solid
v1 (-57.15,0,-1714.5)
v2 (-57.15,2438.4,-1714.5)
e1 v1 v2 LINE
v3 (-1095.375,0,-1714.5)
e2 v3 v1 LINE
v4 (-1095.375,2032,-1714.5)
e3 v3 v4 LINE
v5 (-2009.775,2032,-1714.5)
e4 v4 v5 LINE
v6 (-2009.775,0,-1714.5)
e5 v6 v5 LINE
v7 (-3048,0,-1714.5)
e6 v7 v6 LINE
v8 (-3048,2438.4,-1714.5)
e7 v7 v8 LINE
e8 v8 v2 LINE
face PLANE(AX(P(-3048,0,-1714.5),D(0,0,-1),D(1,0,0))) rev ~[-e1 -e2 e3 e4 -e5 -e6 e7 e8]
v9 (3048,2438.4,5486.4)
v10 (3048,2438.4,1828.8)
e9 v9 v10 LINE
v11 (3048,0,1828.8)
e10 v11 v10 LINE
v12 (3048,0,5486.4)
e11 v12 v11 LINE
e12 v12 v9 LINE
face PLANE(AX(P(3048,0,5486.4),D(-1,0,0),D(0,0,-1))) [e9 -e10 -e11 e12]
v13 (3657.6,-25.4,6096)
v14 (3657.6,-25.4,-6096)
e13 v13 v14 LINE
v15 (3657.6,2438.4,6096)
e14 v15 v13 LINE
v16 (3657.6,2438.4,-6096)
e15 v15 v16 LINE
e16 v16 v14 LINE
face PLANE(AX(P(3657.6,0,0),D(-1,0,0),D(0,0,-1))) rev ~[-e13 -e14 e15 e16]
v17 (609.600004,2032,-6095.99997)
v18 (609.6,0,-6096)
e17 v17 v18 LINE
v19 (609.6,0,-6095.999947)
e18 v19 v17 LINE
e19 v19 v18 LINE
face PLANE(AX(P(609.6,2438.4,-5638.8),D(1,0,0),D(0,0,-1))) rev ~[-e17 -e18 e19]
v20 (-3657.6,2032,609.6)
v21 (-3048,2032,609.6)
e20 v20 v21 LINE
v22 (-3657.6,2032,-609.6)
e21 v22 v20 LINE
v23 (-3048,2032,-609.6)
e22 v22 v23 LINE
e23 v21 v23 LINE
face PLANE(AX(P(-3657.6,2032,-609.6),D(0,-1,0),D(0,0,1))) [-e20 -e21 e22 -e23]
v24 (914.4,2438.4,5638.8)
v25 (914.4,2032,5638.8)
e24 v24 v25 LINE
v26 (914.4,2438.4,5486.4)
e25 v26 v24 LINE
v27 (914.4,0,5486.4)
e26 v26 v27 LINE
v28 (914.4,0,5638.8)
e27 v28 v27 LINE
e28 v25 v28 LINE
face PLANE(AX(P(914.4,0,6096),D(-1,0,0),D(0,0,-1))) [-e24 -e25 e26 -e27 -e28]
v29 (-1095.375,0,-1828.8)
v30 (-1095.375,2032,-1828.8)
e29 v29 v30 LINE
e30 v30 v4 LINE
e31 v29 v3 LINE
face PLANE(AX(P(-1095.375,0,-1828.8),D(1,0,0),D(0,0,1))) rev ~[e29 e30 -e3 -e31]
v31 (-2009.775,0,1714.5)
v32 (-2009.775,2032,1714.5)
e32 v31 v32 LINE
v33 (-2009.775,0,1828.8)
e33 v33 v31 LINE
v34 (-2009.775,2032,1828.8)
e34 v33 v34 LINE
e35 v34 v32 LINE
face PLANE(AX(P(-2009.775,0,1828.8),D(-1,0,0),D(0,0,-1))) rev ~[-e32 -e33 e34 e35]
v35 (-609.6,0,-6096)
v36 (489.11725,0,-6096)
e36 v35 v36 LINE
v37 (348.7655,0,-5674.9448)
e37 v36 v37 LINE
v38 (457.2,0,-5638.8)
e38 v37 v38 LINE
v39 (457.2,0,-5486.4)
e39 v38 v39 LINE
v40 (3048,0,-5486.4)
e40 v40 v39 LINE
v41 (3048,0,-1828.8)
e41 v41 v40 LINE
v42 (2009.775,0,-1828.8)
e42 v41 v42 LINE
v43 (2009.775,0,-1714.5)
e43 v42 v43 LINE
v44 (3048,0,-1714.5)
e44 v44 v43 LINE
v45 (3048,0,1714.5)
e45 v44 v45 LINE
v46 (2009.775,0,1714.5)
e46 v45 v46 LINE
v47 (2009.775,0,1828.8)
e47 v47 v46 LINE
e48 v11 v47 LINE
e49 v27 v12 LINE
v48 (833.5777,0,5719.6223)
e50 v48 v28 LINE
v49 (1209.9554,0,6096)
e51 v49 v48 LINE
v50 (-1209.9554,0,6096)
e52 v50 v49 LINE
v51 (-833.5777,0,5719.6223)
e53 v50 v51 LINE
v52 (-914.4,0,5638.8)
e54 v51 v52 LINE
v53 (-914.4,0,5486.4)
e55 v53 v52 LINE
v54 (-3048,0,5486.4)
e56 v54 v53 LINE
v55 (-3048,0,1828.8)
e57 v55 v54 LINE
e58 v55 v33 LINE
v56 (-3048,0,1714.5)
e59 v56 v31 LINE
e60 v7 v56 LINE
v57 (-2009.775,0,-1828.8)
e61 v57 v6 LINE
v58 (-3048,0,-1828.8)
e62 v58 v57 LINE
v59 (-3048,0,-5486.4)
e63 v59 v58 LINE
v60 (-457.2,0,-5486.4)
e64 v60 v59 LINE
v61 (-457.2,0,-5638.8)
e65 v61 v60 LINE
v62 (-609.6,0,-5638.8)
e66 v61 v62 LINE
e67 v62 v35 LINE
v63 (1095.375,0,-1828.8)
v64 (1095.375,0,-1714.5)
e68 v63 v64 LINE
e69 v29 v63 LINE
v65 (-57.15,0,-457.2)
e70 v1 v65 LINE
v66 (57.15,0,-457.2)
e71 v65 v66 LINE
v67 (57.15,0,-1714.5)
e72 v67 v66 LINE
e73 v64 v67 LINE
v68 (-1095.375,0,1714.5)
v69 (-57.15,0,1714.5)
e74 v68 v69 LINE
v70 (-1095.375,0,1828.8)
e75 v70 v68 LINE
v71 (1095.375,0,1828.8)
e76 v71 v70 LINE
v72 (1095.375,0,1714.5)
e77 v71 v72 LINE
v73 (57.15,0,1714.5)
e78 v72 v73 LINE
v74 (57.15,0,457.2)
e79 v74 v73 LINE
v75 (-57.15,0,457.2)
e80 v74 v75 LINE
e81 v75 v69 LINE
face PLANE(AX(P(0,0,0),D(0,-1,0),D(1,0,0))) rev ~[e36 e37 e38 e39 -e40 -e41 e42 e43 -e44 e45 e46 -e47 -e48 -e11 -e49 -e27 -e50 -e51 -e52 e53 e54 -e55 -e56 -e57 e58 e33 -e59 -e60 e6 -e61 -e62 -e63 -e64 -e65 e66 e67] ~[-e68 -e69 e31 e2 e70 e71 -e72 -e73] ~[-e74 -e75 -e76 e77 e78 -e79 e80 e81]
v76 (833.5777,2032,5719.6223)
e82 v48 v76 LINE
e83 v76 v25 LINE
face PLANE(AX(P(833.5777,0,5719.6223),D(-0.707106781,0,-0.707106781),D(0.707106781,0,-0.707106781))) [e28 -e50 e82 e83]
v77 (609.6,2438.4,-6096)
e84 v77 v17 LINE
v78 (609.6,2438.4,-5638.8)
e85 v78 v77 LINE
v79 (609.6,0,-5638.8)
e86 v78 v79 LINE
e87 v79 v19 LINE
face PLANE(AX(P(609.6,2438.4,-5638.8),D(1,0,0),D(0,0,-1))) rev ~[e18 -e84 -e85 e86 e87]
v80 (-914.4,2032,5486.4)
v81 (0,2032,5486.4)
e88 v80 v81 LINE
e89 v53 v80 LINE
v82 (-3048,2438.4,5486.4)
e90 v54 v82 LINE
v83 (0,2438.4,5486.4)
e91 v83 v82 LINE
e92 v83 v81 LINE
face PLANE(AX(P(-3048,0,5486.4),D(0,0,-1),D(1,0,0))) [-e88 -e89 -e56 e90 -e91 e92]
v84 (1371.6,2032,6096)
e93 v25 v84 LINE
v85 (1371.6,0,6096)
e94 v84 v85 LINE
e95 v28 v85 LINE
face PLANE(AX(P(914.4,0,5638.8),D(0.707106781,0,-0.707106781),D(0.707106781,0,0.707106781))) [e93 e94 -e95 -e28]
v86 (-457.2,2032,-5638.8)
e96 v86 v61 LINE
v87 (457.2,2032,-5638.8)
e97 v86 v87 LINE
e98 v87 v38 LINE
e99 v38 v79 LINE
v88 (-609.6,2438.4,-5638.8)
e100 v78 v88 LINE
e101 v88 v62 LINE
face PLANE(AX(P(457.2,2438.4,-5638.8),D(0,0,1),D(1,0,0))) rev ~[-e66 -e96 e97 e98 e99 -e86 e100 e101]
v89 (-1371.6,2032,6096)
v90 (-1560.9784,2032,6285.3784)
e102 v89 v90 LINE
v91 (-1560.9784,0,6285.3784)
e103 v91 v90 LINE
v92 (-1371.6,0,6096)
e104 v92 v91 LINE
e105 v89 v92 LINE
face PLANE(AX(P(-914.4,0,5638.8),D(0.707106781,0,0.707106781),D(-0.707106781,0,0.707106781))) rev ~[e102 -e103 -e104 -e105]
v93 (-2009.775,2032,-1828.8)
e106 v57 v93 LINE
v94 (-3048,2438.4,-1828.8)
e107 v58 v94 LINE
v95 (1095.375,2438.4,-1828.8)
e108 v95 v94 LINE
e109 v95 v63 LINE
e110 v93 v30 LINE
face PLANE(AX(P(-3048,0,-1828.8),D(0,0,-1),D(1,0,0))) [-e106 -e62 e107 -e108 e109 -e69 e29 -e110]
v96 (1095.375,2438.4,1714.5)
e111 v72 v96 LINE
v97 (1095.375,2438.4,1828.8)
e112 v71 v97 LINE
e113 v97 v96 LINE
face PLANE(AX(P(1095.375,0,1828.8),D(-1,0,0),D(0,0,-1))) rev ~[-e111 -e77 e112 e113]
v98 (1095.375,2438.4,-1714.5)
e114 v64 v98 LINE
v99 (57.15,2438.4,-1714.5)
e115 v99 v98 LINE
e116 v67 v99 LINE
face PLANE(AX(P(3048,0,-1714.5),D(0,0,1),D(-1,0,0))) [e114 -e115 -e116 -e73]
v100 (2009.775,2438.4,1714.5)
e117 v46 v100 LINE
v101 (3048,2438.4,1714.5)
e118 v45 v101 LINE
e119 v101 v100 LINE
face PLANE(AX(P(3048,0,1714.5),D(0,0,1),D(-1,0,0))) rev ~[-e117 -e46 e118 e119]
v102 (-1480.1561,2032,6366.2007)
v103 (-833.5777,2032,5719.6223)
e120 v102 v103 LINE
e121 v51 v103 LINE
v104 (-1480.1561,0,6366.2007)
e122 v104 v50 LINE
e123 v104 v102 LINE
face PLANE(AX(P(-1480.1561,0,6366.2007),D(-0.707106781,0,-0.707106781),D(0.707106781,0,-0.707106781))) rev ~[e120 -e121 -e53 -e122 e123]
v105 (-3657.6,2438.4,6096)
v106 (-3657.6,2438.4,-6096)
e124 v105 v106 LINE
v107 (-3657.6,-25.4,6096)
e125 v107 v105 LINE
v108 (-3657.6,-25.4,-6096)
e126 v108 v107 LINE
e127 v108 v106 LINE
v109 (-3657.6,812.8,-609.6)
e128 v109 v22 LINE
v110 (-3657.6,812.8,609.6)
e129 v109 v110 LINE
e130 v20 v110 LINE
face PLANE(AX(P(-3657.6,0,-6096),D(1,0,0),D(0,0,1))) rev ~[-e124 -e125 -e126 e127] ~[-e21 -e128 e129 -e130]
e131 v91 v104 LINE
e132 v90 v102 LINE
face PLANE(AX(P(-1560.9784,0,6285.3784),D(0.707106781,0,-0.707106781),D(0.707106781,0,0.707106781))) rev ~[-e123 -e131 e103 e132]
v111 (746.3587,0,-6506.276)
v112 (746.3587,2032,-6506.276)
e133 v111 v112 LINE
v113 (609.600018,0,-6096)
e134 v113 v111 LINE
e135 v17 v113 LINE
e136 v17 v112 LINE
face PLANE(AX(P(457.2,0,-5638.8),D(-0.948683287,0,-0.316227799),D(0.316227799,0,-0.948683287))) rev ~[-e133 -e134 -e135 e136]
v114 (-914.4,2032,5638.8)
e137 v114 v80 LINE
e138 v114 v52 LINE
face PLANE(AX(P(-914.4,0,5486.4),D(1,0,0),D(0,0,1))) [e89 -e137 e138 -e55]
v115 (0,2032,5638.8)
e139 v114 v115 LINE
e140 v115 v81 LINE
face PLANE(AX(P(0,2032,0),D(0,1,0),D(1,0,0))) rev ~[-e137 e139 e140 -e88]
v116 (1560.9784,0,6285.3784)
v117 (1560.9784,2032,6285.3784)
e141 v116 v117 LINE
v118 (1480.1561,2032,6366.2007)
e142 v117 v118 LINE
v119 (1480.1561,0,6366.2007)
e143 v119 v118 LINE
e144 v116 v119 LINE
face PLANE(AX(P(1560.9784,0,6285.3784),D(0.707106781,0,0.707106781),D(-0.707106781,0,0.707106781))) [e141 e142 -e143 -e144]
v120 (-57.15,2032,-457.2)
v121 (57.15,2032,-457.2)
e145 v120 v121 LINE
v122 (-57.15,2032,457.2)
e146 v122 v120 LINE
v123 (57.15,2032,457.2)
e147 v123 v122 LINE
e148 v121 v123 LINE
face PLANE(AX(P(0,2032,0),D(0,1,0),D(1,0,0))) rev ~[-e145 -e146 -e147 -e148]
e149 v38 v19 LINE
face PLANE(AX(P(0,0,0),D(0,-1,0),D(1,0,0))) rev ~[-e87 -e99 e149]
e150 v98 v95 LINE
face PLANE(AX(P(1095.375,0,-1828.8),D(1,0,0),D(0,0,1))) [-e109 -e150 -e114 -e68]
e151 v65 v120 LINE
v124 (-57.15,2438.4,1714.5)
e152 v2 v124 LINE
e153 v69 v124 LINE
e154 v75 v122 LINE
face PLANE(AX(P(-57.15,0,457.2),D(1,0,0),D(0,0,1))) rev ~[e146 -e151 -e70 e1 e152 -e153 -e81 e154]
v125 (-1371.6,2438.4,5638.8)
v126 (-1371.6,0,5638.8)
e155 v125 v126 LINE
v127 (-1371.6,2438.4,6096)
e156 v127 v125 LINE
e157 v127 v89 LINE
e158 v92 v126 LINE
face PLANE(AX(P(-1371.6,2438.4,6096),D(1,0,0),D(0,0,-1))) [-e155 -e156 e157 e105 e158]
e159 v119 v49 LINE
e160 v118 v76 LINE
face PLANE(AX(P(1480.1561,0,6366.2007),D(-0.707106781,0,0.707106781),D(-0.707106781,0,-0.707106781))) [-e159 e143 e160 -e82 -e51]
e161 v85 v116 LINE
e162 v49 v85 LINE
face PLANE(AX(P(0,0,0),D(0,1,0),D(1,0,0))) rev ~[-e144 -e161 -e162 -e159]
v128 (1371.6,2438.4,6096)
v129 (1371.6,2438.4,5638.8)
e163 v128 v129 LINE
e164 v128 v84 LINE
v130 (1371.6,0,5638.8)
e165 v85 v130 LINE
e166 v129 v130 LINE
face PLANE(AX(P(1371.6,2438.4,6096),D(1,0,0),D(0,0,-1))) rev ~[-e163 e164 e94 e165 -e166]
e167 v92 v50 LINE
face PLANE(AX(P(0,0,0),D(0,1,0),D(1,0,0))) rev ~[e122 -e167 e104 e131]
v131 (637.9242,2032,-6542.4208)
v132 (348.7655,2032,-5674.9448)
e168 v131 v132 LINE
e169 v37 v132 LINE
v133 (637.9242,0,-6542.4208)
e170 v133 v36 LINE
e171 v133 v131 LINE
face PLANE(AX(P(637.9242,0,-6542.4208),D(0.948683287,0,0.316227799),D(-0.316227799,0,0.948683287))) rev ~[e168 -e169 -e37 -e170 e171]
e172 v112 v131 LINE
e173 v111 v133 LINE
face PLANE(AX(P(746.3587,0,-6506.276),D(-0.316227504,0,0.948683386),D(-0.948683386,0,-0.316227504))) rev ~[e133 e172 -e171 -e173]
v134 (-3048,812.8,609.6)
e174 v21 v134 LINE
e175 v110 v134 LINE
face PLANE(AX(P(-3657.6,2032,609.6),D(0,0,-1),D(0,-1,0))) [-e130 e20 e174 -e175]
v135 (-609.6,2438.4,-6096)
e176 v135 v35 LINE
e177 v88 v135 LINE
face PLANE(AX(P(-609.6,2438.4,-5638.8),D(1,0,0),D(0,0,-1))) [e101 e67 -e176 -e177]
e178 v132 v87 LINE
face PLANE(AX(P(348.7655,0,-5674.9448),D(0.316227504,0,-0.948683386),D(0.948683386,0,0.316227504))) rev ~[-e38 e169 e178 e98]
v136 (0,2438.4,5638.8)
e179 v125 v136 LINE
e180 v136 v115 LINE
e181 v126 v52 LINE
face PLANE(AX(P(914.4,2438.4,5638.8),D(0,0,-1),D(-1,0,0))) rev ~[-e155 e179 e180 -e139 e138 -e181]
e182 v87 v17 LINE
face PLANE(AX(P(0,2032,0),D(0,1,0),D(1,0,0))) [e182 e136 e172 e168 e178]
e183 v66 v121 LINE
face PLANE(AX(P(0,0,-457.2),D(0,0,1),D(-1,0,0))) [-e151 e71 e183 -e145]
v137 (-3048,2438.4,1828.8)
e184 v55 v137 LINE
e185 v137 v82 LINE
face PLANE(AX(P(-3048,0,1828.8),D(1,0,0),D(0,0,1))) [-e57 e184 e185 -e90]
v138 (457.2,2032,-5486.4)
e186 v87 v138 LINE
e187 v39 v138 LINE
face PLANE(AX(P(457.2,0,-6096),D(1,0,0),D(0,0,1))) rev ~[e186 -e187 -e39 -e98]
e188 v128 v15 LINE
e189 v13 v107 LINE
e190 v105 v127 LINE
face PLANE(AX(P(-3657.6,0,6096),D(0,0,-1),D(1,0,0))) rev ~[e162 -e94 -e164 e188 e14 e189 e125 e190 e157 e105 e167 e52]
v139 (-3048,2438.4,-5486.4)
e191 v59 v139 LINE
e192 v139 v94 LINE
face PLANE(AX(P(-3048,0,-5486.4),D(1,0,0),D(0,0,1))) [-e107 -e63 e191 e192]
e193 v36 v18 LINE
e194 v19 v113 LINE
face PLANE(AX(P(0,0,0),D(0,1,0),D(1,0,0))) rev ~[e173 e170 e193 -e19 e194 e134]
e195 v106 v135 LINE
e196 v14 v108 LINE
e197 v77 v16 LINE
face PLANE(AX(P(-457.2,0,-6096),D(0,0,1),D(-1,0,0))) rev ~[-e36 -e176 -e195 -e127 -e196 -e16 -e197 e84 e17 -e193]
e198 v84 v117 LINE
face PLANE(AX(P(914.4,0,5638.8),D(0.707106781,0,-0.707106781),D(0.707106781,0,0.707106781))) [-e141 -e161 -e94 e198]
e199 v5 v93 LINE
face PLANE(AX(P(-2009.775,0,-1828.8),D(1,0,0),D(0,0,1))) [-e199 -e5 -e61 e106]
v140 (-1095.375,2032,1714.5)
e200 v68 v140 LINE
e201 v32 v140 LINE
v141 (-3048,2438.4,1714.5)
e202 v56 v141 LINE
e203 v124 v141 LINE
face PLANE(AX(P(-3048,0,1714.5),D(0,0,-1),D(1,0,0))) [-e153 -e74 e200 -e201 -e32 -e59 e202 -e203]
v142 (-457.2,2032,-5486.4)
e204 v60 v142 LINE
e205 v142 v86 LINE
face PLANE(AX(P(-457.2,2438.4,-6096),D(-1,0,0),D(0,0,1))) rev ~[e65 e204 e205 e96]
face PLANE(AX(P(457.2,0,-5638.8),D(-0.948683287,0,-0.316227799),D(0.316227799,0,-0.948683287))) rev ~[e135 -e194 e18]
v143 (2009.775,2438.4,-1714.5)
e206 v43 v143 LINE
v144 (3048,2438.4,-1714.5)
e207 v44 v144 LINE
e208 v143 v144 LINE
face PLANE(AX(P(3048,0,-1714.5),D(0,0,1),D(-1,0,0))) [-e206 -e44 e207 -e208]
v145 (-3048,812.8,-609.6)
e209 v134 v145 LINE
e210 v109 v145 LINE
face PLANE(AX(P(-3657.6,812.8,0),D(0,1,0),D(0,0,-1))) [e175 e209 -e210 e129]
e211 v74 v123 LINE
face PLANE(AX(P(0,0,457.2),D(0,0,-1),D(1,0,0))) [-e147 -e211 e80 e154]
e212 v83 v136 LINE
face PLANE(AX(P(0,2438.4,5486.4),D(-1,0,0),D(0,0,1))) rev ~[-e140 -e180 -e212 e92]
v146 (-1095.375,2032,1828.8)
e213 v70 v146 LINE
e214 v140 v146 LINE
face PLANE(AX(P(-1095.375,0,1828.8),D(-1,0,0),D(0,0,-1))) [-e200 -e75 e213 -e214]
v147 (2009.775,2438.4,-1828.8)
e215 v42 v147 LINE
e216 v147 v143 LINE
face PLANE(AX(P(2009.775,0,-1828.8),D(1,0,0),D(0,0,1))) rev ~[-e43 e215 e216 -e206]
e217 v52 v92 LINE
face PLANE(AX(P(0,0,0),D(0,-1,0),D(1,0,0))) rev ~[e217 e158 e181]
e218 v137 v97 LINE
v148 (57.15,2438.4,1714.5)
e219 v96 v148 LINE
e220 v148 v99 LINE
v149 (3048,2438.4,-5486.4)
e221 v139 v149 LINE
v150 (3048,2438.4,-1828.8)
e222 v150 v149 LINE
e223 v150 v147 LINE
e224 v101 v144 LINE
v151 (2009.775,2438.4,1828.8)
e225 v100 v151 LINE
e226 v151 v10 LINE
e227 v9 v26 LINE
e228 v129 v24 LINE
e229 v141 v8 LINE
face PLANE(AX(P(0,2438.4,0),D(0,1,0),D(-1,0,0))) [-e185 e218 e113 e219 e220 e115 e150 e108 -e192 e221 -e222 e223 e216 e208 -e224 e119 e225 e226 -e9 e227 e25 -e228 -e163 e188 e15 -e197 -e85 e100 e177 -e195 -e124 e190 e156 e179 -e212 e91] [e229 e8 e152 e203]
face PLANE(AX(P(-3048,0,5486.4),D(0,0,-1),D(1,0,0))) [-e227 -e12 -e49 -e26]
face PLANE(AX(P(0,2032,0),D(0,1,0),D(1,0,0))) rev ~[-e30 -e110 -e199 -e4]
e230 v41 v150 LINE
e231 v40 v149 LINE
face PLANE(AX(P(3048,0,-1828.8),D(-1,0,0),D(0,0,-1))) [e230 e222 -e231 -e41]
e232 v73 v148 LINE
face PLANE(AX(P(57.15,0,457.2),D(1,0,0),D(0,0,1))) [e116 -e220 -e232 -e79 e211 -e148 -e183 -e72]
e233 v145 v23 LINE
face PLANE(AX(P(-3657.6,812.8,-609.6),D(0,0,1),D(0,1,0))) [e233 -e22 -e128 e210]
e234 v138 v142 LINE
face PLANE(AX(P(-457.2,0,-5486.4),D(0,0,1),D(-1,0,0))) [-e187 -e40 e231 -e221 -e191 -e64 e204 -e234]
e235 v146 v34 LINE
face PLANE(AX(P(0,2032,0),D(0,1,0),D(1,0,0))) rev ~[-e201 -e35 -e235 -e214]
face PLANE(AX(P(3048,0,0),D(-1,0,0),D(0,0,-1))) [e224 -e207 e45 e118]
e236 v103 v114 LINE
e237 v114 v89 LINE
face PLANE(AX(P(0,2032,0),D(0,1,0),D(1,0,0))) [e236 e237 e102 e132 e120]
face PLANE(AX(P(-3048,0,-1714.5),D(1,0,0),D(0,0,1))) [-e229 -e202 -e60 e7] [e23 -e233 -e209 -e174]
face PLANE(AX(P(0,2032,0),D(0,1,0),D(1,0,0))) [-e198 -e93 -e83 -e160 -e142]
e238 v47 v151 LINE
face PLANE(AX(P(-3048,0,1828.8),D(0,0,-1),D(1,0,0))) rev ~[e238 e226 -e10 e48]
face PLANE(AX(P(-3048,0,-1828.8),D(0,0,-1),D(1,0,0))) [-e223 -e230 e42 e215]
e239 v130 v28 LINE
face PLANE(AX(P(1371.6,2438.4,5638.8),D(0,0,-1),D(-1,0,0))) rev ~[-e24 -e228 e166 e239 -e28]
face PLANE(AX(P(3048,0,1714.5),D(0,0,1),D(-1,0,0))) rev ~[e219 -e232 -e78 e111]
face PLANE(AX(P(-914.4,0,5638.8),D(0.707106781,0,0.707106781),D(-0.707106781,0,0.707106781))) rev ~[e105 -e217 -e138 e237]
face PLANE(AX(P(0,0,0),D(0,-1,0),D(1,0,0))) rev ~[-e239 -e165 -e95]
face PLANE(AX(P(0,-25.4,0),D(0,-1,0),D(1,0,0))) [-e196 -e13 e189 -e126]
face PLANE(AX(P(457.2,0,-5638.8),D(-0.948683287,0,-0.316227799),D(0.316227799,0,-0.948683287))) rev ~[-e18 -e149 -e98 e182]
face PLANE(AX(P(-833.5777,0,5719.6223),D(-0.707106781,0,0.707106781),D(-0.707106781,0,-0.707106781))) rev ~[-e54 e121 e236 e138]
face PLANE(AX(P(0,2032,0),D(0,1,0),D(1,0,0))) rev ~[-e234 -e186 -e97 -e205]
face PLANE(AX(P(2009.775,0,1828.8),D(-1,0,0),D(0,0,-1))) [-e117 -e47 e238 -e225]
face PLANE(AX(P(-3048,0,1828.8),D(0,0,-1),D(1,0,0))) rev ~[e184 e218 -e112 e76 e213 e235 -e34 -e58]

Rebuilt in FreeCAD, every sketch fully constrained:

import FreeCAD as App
import Part
import Sketcher
from FreeCAD import Vector
Q = App.Units.Quantity

doc = App.newDocument("Part")
body = doc.addObject("PartDesign::Body", "Body")
body.AllowCompound = True

sketch1 = body.newObject("Sketcher::SketchObject", "Sketch")
sketch1.AttachmentSupport = (doc.getObject("XZ_Plane"), [""])
sketch1.MapMode = "FlatFace"
sketch1.addGeometry([
    Part.LineSegment(Vector(-457, -6096, 0), Vector(-3658, -6096, 0)),
    Part.LineSegment(Vector(-3658, -6096, 0), Vector(-3658, 6096, 0)),
    Part.LineSegment(Vector(-3658, 6096, 0), Vector(-914, 6096, 0)),
    Part.LineSegment(Vector(-914, 6096, 0), Vector(-914, 5486, 0)),
    Part.LineSegment(Vector(-914, 5486, 0), Vector(-3048, 5486, 0)),
    Part.LineSegment(Vector(-3048, 5486, 0), Vector(-3048, 1829, 0)),
    Part.LineSegment(Vector(-3048, 1829, 0), Vector(-2010, 1829, 0)),
    Part.LineSegment(Vector(-2010, 1829, 0), Vector(-2010, 1714, 0)),
    Part.LineSegment(Vector(-2010, 1714, 0), Vector(-3048, 1714, 0)),
    Part.LineSegment(Vector(-3048, 1714, 0), Vector(-3048, -1714, 0)),
    Part.LineSegment(Vector(-3048, -1714, 0), Vector(-2010, -1714, 0)),
    Part.LineSegment(Vector(-2010, -1714, 0), Vector(-2010, -1829, 0)),
    Part.LineSegment(Vector(-2010, -1829, 0), Vector(-3048, -1829, 0)),
    Part.LineSegment(Vector(-3048, -1829, 0), Vector(-3048, -5486, 0)),
    Part.LineSegment(Vector(-3048, -5486, 0), Vector(-457, -5486, 0)),
    Part.LineSegment(Vector(-457, -5486, 0), Vector(-457, -6096, 0)),
    Part.LineSegment(Vector(-57, -457, 0), Vector(57, -457, 0)),
    Part.LineSegment(Vector(57, -457, 0), Vector(57, -1714, 0)),
    Part.LineSegment(Vector(57, -1714, 0), Vector(1095, -1714, 0)),
    Part.LineSegment(Vector(1095, -1714, 0), Vector(1095, -1829, 0)),
    Part.LineSegment(Vector(1095, -1829, 0), Vector(-1095, -1829, 0)),
    Part.LineSegment(Vector(-1095, -1829, 0), Vector(-1095, -1714, 0)),
    Part.LineSegment(Vector(-1095, -1714, 0), Vector(-57, -1714, 0)),
    Part.LineSegment(Vector(-57, -1714, 0), Vector(-57, -457, 0)),
    Part.LineSegment(Vector(3048, -1714, 0), Vector(3048, 1714, 0)),
    Part.LineSegment(Vector(3048, 1714, 0), Vector(2010, 1714, 0)),
    Part.LineSegment(Vector(2010, 1714, 0), Vector(2010, 1829, 0)),
    Part.LineSegment(Vector(2010, 1829, 0), Vector(3048, 1829, 0)),
    Part.LineSegment(Vector(3048, 1829, 0), Vector(3048, 5486, 0)),
    Part.LineSegment(Vector(3048, 5486, 0), Vector(914, 5486, 0)),
    Part.LineSegment(Vector(914, 5486, 0), Vector(914, 6096, 0)),
    Part.LineSegment(Vector(914, 6096, 0), Vector(3658, 6096, 0)),
    Part.LineSegment(Vector(3658, 6096, 0), Vector(3658, -6096, 0)),
    Part.LineSegment(Vector(3658, -6096, 0), Vector(457, -6096, 0)),
    Part.LineSegment(Vector(457, -6096, 0), Vector(457, -5486, 0)),
    Part.LineSegment(Vector(457, -5486, 0), Vector(3048, -5486, 0)),
    Part.LineSegment(Vector(3048, -5486, 0), Vector(3048, -1829, 0)),
    Part.LineSegment(Vector(3048, -1829, 0), Vector(2010, -1829, 0)),
    Part.LineSegment(Vector(2010, -1829, 0), Vector(2010, -1714, 0)),
    Part.LineSegment(Vector(2010, -1714, 0), Vector(3048, -1714, 0)),
    Part.LineSegment(Vector(57, 457, 0), Vector(-57, 457, 0)),
    Part.LineSegment(Vector(-57, 457, 0), Vector(-57, 1714, 0)),
    Part.LineSegment(Vector(-57, 1714, 0), Vector(-1095, 1714, 0)),
    Part.LineSegment(Vector(-1095, 1714, 0), Vector(-1095, 1829, 0)),
    Part.LineSegment(Vector(-1095, 1829, 0), Vector(1095, 1829, 0)),
    Part.LineSegment(Vector(1095, 1829, 0), Vector(1095, 1714, 0)),
    Part.LineSegment(Vector(1095, 1714, 0), Vector(57, 1714, 0)),
    Part.LineSegment(Vector(57, 1714, 0), Vector(57, 457, 0)),
], False)
sketch1.addConstraint([
    Sketcher.Constraint("Coincident", 0, 2, 1, 1),
    Sketcher.Constraint("Coincident", 1, 2, 2, 1),
    Sketcher.Constraint("Coincident", 2, 2, 3, 1),
    Sketcher.Constraint("Coincident", 3, 2, 4, 1),
    Sketcher.Constraint("Coincident", 4, 2, 5, 1),
    Sketcher.Constraint("Coincident", 5, 2, 6, 1),
    Sketcher.Constraint("Coincident", 6, 2, 7, 1),
    Sketcher.Constraint("Coincident", 7, 2, 8, 1),
    Sketcher.Constraint("Coincident", 8, 2, 9, 1),
    Sketcher.Constraint("Coincident", 9, 2, 10, 1),
    Sketcher.Constraint("Coincident", 10, 2, 11, 1),
    Sketcher.Constraint("Coincident", 11, 2, 12, 1),
    Sketcher.Constraint("Coincident", 12, 2, 13, 1),
    Sketcher.Constraint("Coincident", 13, 2, 14, 1),
    Sketcher.Constraint("Coincident", 14, 2, 15, 1),
    Sketcher.Constraint("Coincident", 15, 2, 0, 1),
    Sketcher.Constraint("Coincident", 16, 2, 17, 1),
    Sketcher.Constraint("Coincident", 17, 2, 18, 1),
    Sketcher.Constraint("Coincident", 18, 2, 19, 1),
    Sketcher.Constraint("Coincident", 19, 2, 20, 1),
    Sketcher.Constraint("Coincident", 20, 2, 21, 1),
    Sketcher.Constraint("Coincident", 21, 2, 22, 1),
    Sketcher.Constraint("Coincident", 22, 2, 23, 1),
    Sketcher.Constraint("Coincident", 23, 2, 16, 1),
    Sketcher.Constraint("Coincident", 24, 2, 25, 1),
    Sketcher.Constraint("Coincident", 25, 2, 26, 1),
    Sketcher.Constraint("Coincident", 26, 2, 27, 1),
    Sketcher.Constraint("Coincident", 27, 2, 28, 1),
    Sketcher.Constraint("Coincident", 28, 2, 29, 1),
    Sketcher.Constraint("Coincident", 29, 2, 30, 1),
    Sketcher.Constraint("Coincident", 30, 2, 31, 1),
    Sketcher.Constraint("Coincident", 31, 2, 32, 1),
    Sketcher.Constraint("Coincident", 32, 2, 33, 1),
    Sketcher.Constraint("Coincident", 33, 2, 34, 1),
    Sketcher.Constraint("Coincident", 34, 2, 35, 1),
    Sketcher.Constraint("Coincident", 35, 2, 36, 1),
    Sketcher.Constraint("Coincident", 36, 2, 37, 1),
    Sketcher.Constraint("Coincident", 37, 2, 38, 1),
    Sketcher.Constraint("Coincident", 38, 2, 39, 1),
    Sketcher.Constraint("Coincident", 39, 2, 24, 1),
    Sketcher.Constraint("Coincident", 40, 2, 41, 1),
    Sketcher.Constraint("Coincident", 41, 2, 42, 1),
    Sketcher.Constraint("Coincident", 42, 2, 43, 1),
    Sketcher.Constraint("Coincident", 43, 2, 44, 1),
    Sketcher.Constraint("Coincident", 44, 2, 45, 1),
    Sketcher.Constraint("Coincident", 45, 2, 46, 1),
    Sketcher.Constraint("Coincident", 46, 2, 47, 1),
    Sketcher.Constraint("Coincident", 47, 2, 40, 1),
    Sketcher.Constraint("Horizontal", 0),
    Sketcher.Constraint("Vertical", 1),
    Sketcher.Constraint("Horizontal", 2),
    Sketcher.Constraint("Vertical", 3),
    Sketcher.Constraint("Horizontal", 4),
    Sketcher.Constraint("Vertical", 5),
    Sketcher.Constraint("Horizontal", 6),
    Sketcher.Constraint("Vertical", 7),
    Sketcher.Constraint("Horizontal", 8),
    Sketcher.Constraint("Vertical", 9),
    Sketcher.Constraint("Horizontal", 10),
    Sketcher.Constraint("Vertical", 11),
    Sketcher.Constraint("Horizontal", 12),
    Sketcher.Constraint("Vertical", 13),
    Sketcher.Constraint("Horizontal", 14),
    Sketcher.Constraint("Vertical", 15),
    Sketcher.Constraint("Horizontal", 16),
    Sketcher.Constraint("Vertical", 17),
    Sketcher.Constraint("Horizontal", 18),
    Sketcher.Constraint("Vertical", 19),
    Sketcher.Constraint("Horizontal", 20),
    Sketcher.Constraint("Vertical", 21),
    Sketcher.Constraint("Horizontal", 22),
    Sketcher.Constraint("Vertical", 23),
    Sketcher.Constraint("Vertical", 24),
    Sketcher.Constraint("Horizontal", 25),
    Sketcher.Constraint("Vertical", 26),
    Sketcher.Constraint("Horizontal", 27),
    Sketcher.Constraint("Vertical", 28),
    Sketcher.Constraint("Horizontal", 29),
    Sketcher.Constraint("Vertical", 30),
    Sketcher.Constraint("Horizontal", 31),
    Sketcher.Constraint("Vertical", 32),
    Sketcher.Constraint("Horizontal", 33),
    Sketcher.Constraint("Vertical", 34),
    Sketcher.Constraint("Horizontal", 35),
    Sketcher.Constraint("Vertical", 36),
    Sketcher.Constraint("Horizontal", 37),
    Sketcher.Constraint("Vertical", 38),
    Sketcher.Constraint("Horizontal", 39),
    Sketcher.Constraint("Horizontal", 40),
    Sketcher.Constraint("Vertical", 41),
    Sketcher.Constraint("Horizontal", 42),
    Sketcher.Constraint("Vertical", 43),
    Sketcher.Constraint("Horizontal", 44),
    Sketcher.Constraint("Vertical", 45),
    Sketcher.Constraint("Horizontal", 46),
    Sketcher.Constraint("Vertical", 47),
    Sketcher.Constraint("Symmetric", 9, 2, 24, 2, -1, 1),
    Sketcher.Constraint("Symmetric", 11, 2, 26, 2, -1, 1),
    Sketcher.Constraint("Symmetric", 13, 2, 28, 2, -1, 1),
    Sketcher.Constraint("Symmetric", 0, 2, 31, 2, -1, 1),
    Sketcher.Constraint("Symmetric", 4, 2, 35, 2, -1, 1),
    Sketcher.Constraint("Symmetric", 6, 2, 37, 2, -1, 1),
    Sketcher.Constraint("Symmetric", 16, 2, 40, 2, -1, 1),
    Sketcher.Constraint("Symmetric", 18, 2, 42, 2, -1, 1),
    Sketcher.Constraint("Symmetric", 20, 2, 44, 2, -1, 1),
    Sketcher.Constraint("Symmetric", 22, 2, 46, 2, -1, 1),
    Sketcher.Constraint("Symmetric", 18, 2, 21, 2, -2),
    Sketcher.Constraint("Symmetric", 7, 2, 25, 2, -2),
    Sketcher.Constraint("Symmetric", 5, 2, 27, 2, -2),
    Sketcher.Constraint("Symmetric", 3, 2, 29, 2, -2),
    Sketcher.Constraint("Symmetric", 15, 2, 33, 2, -2),
    Sketcher.Constraint("Horizontal", 10, 2, 17, 2),
    Sketcher.Constraint("Horizontal", 12, 2, 19, 2),
    Sketcher.Constraint("Horizontal", 2, 2, 30, 2),
    Sketcher.Constraint("Horizontal", 22, 2, 38, 2),
    Sketcher.Constraint("Vertical", 5, 2, 8, 2),
    Sketcher.Constraint("Vertical", 23, 2, 40, 2),
    Sketcher.Constraint("Equal", 12, 18),
    Sketcher.Constraint("Equal", 40, 7),
    Sketcher.Constraint("DistanceY", 1, 1, 1, 2, Q("480 in")),
    Sketcher.Constraint("DistanceY", 3, 2, 3, 1, Q("24 in")),
    Sketcher.Constraint("DistanceX", 16, 1, 16, 2, Q("4.5 in")),
    Sketcher.Constraint("DistanceX", 2, 2, -1, 1, Q("36 in")),
    Sketcher.Constraint("DistanceY", -1, 1, 5, 2, Q("72 in")),
    Sketcher.Constraint("DistanceX", 1, 2, 4, 2, Q("24 in")),
    Sketcher.Constraint("DistanceX", 11, 2, 20, 2, Q("36 in")),
    Sketcher.Constraint("DistanceX", 15, 2, 33, 2, Q("36 in")),
    Sketcher.Constraint("DistanceY", 23, 2, 40, 2, Q("36 in")),
    Sketcher.Constraint("DistanceX", 0, 2, 0, 1, Q("126 in")),
])
pad1 = body.newObject("PartDesign::Pad", "Pad")
pad1.Profile = sketch1
pad1.Length = Q("96 in")
pad1.Reversed = True

sketch2 = body.newObject("Sketcher::SketchObject", "Sketch001")
sketch2.AttachmentSupport = (doc.getObject("YZ_Plane"), [""])
sketch2.MapMode = "FlatFace"
sketch2.AttachmentOffset = App.Placement(Vector(0, 0, -144 * 25.4), App.Rotation())
sketch2.addGeometry([
    Part.LineSegment(Vector(2032, -610, 0), Vector(813, -610, 0)),
    Part.LineSegment(Vector(813, -610, 0), Vector(813, 610, 0)),
    Part.LineSegment(Vector(813, 610, 0), Vector(2032, 610, 0)),
    Part.LineSegment(Vector(2032, 610, 0), Vector(2032, -610, 0)),
], False)
sketch2.addConstraint([
    Sketcher.Constraint("Coincident", 0, 2, 1, 1),
    Sketcher.Constraint("Coincident", 1, 2, 2, 1),
    Sketcher.Constraint("Coincident", 2, 2, 3, 1),
    Sketcher.Constraint("Coincident", 3, 2, 0, 1),
    Sketcher.Constraint("Horizontal", 0),
    Sketcher.Constraint("Vertical", 1),
    Sketcher.Constraint("Horizontal", 2),
    Sketcher.Constraint("Vertical", 3),
    Sketcher.Constraint("Equal", 2, 1),
    Sketcher.Constraint("DistanceX", 0, 2, 0, 1, Q("48 in")),
    Sketcher.Constraint("DistanceX", -1, 1, 0, 2, Q("32 in")),
    Sketcher.Constraint("DistanceY", 0, 2, -1, 1, Q("24 in")),
])
pocket1 = body.newObject("PartDesign::Pocket", "Pocket")
pocket1.Profile = sketch2
pocket1.Length = Q("24 in")
pocket1.Reversed = True

sketch3 = body.newObject("Sketcher::SketchObject", "Sketch002")
sketch3.AttachmentSupport = (doc.getObject("XZ_Plane"), [""])
sketch3.MapMode = "FlatFace"
sketch3.AttachmentOffset = App.Placement(Vector(0, 0, -96 * 25.4), App.Rotation())
sketch3.addGeometry([
    Part.LineSegment(Vector(1095, -1829, 0), Vector(1095, -1714, 0)),
    Part.LineSegment(Vector(1095, -1714, 0), Vector(2010, -1714, 0)),
    Part.LineSegment(Vector(2010, -1714, 0), Vector(2010, -1829, 0)),
    Part.LineSegment(Vector(2010, -1829, 0), Vector(1095, -1829, 0)),
    Part.LineSegment(Vector(57, 457, 0), Vector(57, -457, 0)),
    Part.LineSegment(Vector(57, -457, 0), Vector(-57, -457, 0)),
    Part.LineSegment(Vector(-57, -457, 0), Vector(-57, 457, 0)),
    Part.LineSegment(Vector(-57, 457, 0), Vector(57, 457, 0)),
    Part.LineSegment(Vector(-1095, -1714, 0), Vector(-1095, -1829, 0)),
    Part.LineSegment(Vector(-1095, -1829, 0), Vector(-2010, -1829, 0)),
    Part.LineSegment(Vector(-2010, -1829, 0), Vector(-2010, -1714, 0)),
    Part.LineSegment(Vector(-2010, -1714, 0), Vector(-1095, -1714, 0)),
    Part.LineSegment(Vector(2010, 1714, 0), Vector(1095, 1714, 0)),
    Part.LineSegment(Vector(1095, 1714, 0), Vector(1095, 1829, 0)),
    Part.LineSegment(Vector(1095, 1829, 0), Vector(2010, 1829, 0)),
    Part.LineSegment(Vector(2010, 1829, 0), Vector(2010, 1714, 0)),
    Part.LineSegment(Vector(-1095, 1829, 0), Vector(-1095, 1714, 0)),
    Part.LineSegment(Vector(-1095, 1714, 0), Vector(-2010, 1714, 0)),
    Part.LineSegment(Vector(-2010, 1714, 0), Vector(-2010, 1829, 0)),
    Part.LineSegment(Vector(-2010, 1829, 0), Vector(-1095, 1829, 0)),
    Part.LineSegment(Vector(-457, -5486, 0), Vector(457, -5486, 0)),
    Part.LineSegment(Vector(457, -5486, 0), Vector(457, -6096, 0)),
    Part.LineSegment(Vector(457, -6096, 0), Vector(-457, -6096, 0)),
    Part.LineSegment(Vector(-457, -6096, 0), Vector(-457, -5486, 0)),
    Part.LineSegment(Vector(914, 6096, 0), Vector(914, 5486, 0)),
    Part.LineSegment(Vector(914, 5486, 0), Vector(-914, 5486, 0)),
    Part.LineSegment(Vector(-914, 5486, 0), Vector(-914, 6096, 0)),
    Part.LineSegment(Vector(-914, 6096, 0), Vector(914, 6096, 0)),
], False)
sketch3.addConstraint([
    Sketcher.Constraint("Coincident", 0, 2, 1, 1),
    Sketcher.Constraint("Coincident", 1, 2, 2, 1),
    Sketcher.Constraint("Coincident", 2, 2, 3, 1),
    Sketcher.Constraint("Coincident", 3, 2, 0, 1),
    Sketcher.Constraint("Coincident", 4, 2, 5, 1),
    Sketcher.Constraint("Coincident", 5, 2, 6, 1),
    Sketcher.Constraint("Coincident", 6, 2, 7, 1),
    Sketcher.Constraint("Coincident", 7, 2, 4, 1),
    Sketcher.Constraint("Coincident", 8, 2, 9, 1),
    Sketcher.Constraint("Coincident", 9, 2, 10, 1),
    Sketcher.Constraint("Coincident", 10, 2, 11, 1),
    Sketcher.Constraint("Coincident", 11, 2, 8, 1),
    Sketcher.Constraint("Coincident", 12, 2, 13, 1),
    Sketcher.Constraint("Coincident", 13, 2, 14, 1),
    Sketcher.Constraint("Coincident", 14, 2, 15, 1),
    Sketcher.Constraint("Coincident", 15, 2, 12, 1),
    Sketcher.Constraint("Coincident", 16, 2, 17, 1),
    Sketcher.Constraint("Coincident", 17, 2, 18, 1),
    Sketcher.Constraint("Coincident", 18, 2, 19, 1),
    Sketcher.Constraint("Coincident", 19, 2, 16, 1),
    Sketcher.Constraint("Coincident", 20, 2, 21, 1),
    Sketcher.Constraint("Coincident", 21, 2, 22, 1),
    Sketcher.Constraint("Coincident", 22, 2, 23, 1),
    Sketcher.Constraint("Coincident", 23, 2, 20, 1),
    Sketcher.Constraint("Coincident", 24, 2, 25, 1),
    Sketcher.Constraint("Coincident", 25, 2, 26, 1),
    Sketcher.Constraint("Coincident", 26, 2, 27, 1),
    Sketcher.Constraint("Coincident", 27, 2, 24, 1),
    Sketcher.Constraint("Vertical", 0),
    Sketcher.Constraint("Horizontal", 1),
    Sketcher.Constraint("Vertical", 2),
    Sketcher.Constraint("Horizontal", 3),
    Sketcher.Constraint("Vertical", 4),
    Sketcher.Constraint("Horizontal", 5),
    Sketcher.Constraint("Vertical", 6),
    Sketcher.Constraint("Horizontal", 7),
    Sketcher.Constraint("Vertical", 8),
    Sketcher.Constraint("Horizontal", 9),
    Sketcher.Constraint("Vertical", 10),
    Sketcher.Constraint("Horizontal", 11),
    Sketcher.Constraint("Horizontal", 12),
    Sketcher.Constraint("Vertical", 13),
    Sketcher.Constraint("Horizontal", 14),
    Sketcher.Constraint("Vertical", 15),
    Sketcher.Constraint("Vertical", 16),
    Sketcher.Constraint("Horizontal", 17),
    Sketcher.Constraint("Vertical", 18),
    Sketcher.Constraint("Horizontal", 19),
    Sketcher.Constraint("Horizontal", 20),
    Sketcher.Constraint("Vertical", 21),
    Sketcher.Constraint("Horizontal", 22),
    Sketcher.Constraint("Vertical", 23),
    Sketcher.Constraint("Vertical", 24),
    Sketcher.Constraint("Horizontal", 25),
    Sketcher.Constraint("Vertical", 26),
    Sketcher.Constraint("Horizontal", 27),
    Sketcher.Constraint("Symmetric", 4, 2, 6, 2, -1, 1),
    Sketcher.Constraint("Symmetric", 11, 2, 12, 2, -1, 1),
    Sketcher.Constraint("Symmetric", 9, 2, 14, 2, -1, 1),
    Sketcher.Constraint("Symmetric", 0, 2, 16, 2, -1, 1),
    Sketcher.Constraint("Symmetric", 2, 2, 18, 2, -1, 1),
    Sketcher.Constraint("Symmetric", 3, 2, 8, 2, -2),
    Sketcher.Constraint("Symmetric", 1, 2, 10, 2, -2),
    Sketcher.Constraint("Equal", 19, 20),
    Sketcher.Constraint("Equal", 7, 0),
    Sketcher.Constraint("Equal", 22, 4),
    Sketcher.Constraint("Equal", 23, 24),
    Sketcher.Constraint("DistanceX", 1, 1, 1, 2, Q("36 in")),
    Sketcher.Constraint("DistanceX", 25, 2, 25, 1, Q("72 in")),
    Sketcher.Constraint("DistanceY", 21, 2, 21, 1, Q("24 in")),
    Sketcher.Constraint("DistanceX", 5, 2, 5, 1, Q("4.5 in")),
    Sketcher.Constraint("DistanceY", 2, 2, -1, 1, Q("72 in")),
    Sketcher.Constraint("DistanceX", -1, 1, 20, 2, Q("18 in")),
    Sketcher.Constraint("DistanceY", 20, 2, -1, 1, Q("216 in")),
    Sketcher.Constraint("DistanceX", -1, 1, 24, 2, Q("36 in")),
    Sketcher.Constraint("DistanceY", -1, 1, 24, 2, Q("216 in")),
    Sketcher.Constraint("DistanceX", 8, 2, 3, 2, Q("86.25 in")),
])
pad2 = body.newObject("PartDesign::Pad", "Pad001")
pad2.Profile = sketch3
pad2.Length = Q("16 in")

sketch4 = body.newObject("Sketcher::SketchObject", "Sketch003")
sketch4.AttachmentSupport = (doc.getObject("XZ_Plane"), [""])
sketch4.MapMode = "FlatFace"
sketch4.addGeometry([
    Part.LineSegment(Vector(3658, -6096, 0), Vector(3658, 6096, 0)),
    Part.LineSegment(Vector(3658, 6096, 0), Vector(-3658, 6096, 0)),
    Part.LineSegment(Vector(-3658, 6096, 0), Vector(-3658, -6096, 0)),
    Part.LineSegment(Vector(-3658, -6096, 0), Vector(3658, -6096, 0)),
], False)
sketch4.addConstraint([
    Sketcher.Constraint("Coincident", 0, 2, 1, 1),
    Sketcher.Constraint("Coincident", 1, 2, 2, 1),
    Sketcher.Constraint("Coincident", 2, 2, 3, 1),
    Sketcher.Constraint("Coincident", 3, 2, 0, 1),
    Sketcher.Constraint("Vertical", 0),
    Sketcher.Constraint("Horizontal", 1),
    Sketcher.Constraint("Vertical", 2),
    Sketcher.Constraint("Horizontal", 3),
    Sketcher.Constraint("Symmetric", 0, 2, 2, 2, -1, 1),
    Sketcher.Constraint("DistanceX", 1, 2, 1, 1, Q("288 in")),
    Sketcher.Constraint("DistanceY", 0, 1, 0, 2, Q("480 in")),
])
pad3 = body.newObject("PartDesign::Pad", "Pad002")
pad3.Profile = sketch4
pad3.Length = Q("1 in")

sketch5 = body.newObject("Sketcher::SketchObject", "Sketch004")
sketch5.AttachmentSupport = (doc.getObject("XZ_Plane"), [""])
sketch5.MapMode = "FlatFace"
sketch5.AttachmentOffset = App.Placement(Vector(0, 0, -96 * 25.4), App.Rotation())
sketch5.addGeometry([
    Part.LineSegment(Vector(-457, -6096, 0), Vector(-457, -5639, 0)),
    Part.LineSegment(Vector(-457, -5639, 0), Vector(457, -5639, 0)),
    Part.LineSegment(Vector(457, -5639, 0), Vector(457, -6096, 0)),
    Part.LineSegment(Vector(457, -6096, 0), Vector(-457, -6096, 0)),
    Part.LineSegment(Vector(914, 5639, 0), Vector(-914, 5639, 0)),
    Part.LineSegment(Vector(-914, 5639, 0), Vector(-914, 6096, 0)),
    Part.LineSegment(Vector(-914, 6096, 0), Vector(914, 6096, 0)),
    Part.LineSegment(Vector(914, 6096, 0), Vector(914, 5639, 0)),
], False)
sketch5.addConstraint([
    Sketcher.Constraint("Coincident", 0, 2, 1, 1),
    Sketcher.Constraint("Coincident", 1, 2, 2, 1),
    Sketcher.Constraint("Coincident", 2, 2, 3, 1),
    Sketcher.Constraint("Coincident", 3, 2, 0, 1),
    Sketcher.Constraint("Coincident", 4, 2, 5, 1),
    Sketcher.Constraint("Coincident", 5, 2, 6, 1),
    Sketcher.Constraint("Coincident", 6, 2, 7, 1),
    Sketcher.Constraint("Coincident", 7, 2, 4, 1),
    Sketcher.Constraint("Vertical", 0),
    Sketcher.Constraint("Horizontal", 1),
    Sketcher.Constraint("Vertical", 2),
    Sketcher.Constraint("Horizontal", 3),
    Sketcher.Constraint("Horizontal", 4),
    Sketcher.Constraint("Vertical", 5),
    Sketcher.Constraint("Horizontal", 6),
    Sketcher.Constraint("Vertical", 7),
    Sketcher.Constraint("Equal", 2, 5),
    Sketcher.Constraint("DistanceX", 1, 1, 1, 2, Q("36 in")),
    Sketcher.Constraint("DistanceX", 4, 2, 4, 1, Q("72 in")),
    Sketcher.Constraint("DistanceY", 0, 1, 0, 2, Q("18 in")),
    Sketcher.Constraint("DistanceX", 0, 2, -1, 1, Q("18 in")),
    Sketcher.Constraint("DistanceY", 0, 2, -1, 1, Q("222 in")),
    Sketcher.Constraint("DistanceX", 4, 2, -1, 1, Q("36 in")),
    Sketcher.Constraint("DistanceY", -1, 1, 4, 2, Q("222 in")),
])
pocket2 = body.newObject("PartDesign::Pocket", "Pocket001")
pocket2.Profile = sketch5
pocket2.Type = "UpToFirst"
pocket2.Reversed = True

sketch6 = body.newObject("Sketcher::SketchObject", "Sketch005")
sketch6.AttachmentSupport = (doc.getObject("XZ_Plane"), [""])
sketch6.MapMode = "FlatFace"
sketch6.AttachmentOffset = App.Placement(Vector(0, 0, -96 * 25.4), App.Rotation())
sketch6.addGeometry([
    Part.LineSegment(Vector(0, 5486, 0), Vector(0, 5639, 0)),
    Part.LineSegment(Vector(0, 5639, 0), Vector(914, 5639, 0)),
    Part.LineSegment(Vector(914, 5639, 0), Vector(914, 5486, 0)),
    Part.LineSegment(Vector(914, 5486, 0), Vector(0, 5486, 0)),
], False)
sketch6.addConstraint([
    Sketcher.Constraint("Coincident", 0, 2, 1, 1),
    Sketcher.Constraint("Coincident", 1, 2, 2, 1),
    Sketcher.Constraint("Coincident", 2, 2, 3, 1),
    Sketcher.Constraint("Coincident", 3, 2, 0, 1),
    Sketcher.Constraint("Vertical", 0),
    Sketcher.Constraint("Horizontal", 1),
    Sketcher.Constraint("Vertical", 2),
    Sketcher.Constraint("Horizontal", 3),
    Sketcher.Constraint("PointOnObject", 0, 2, -2),
    Sketcher.Constraint("DistanceX", 1, 1, 1, 2, Q("36 in")),
    Sketcher.Constraint("DistanceY", 0, 1, 0, 2, Q("6 in")),
    Sketcher.Constraint("DistanceY", -1, 1, 0, 2, Q("222 in")),
])
pocket3 = body.newObject("PartDesign::Pocket", "Pocket002")
pocket3.Profile = sketch6
pocket3.Type = "UpToFirst"
pocket3.Reversed = True

sketch7 = body.newObject("Sketcher::SketchObject", "Sketch006")
sketch7.AttachmentSupport = (doc.getObject("XZ_Plane"), [""])
sketch7.MapMode = "FlatFace"
sketch7.AttachmentOffset = App.Placement(Vector(0, 0, -96 * 25.4), App.Rotation())
sketch7.addGeometry([
    Part.LineSegment(Vector(610, -5639, 0), Vector(610, -6096, 0)),
    Part.LineSegment(Vector(610, -6096, 0), Vector(457, -6096, 0)),
    Part.LineSegment(Vector(457, -6096, 0), Vector(457, -5639, 0)),
    Part.LineSegment(Vector(457, -5639, 0), Vector(610, -5639, 0)),
    Part.LineSegment(Vector(-610, -5639, 0), Vector(-457, -5639, 0)),
    Part.LineSegment(Vector(-457, -5639, 0), Vector(-457, -6096, 0)),
    Part.LineSegment(Vector(-457, -6096, 0), Vector(-610, -6096, 0)),
    Part.LineSegment(Vector(-610, -6096, 0), Vector(-610, -5639, 0)),
    Part.LineSegment(Vector(-1372, 6096, 0), Vector(-914, 6096, 0)),
    Part.LineSegment(Vector(-914, 6096, 0), Vector(-914, 5639, 0)),
    Part.LineSegment(Vector(-914, 5639, 0), Vector(-1372, 5639, 0)),
    Part.LineSegment(Vector(-1372, 5639, 0), Vector(-1372, 6096, 0)),
    Part.LineSegment(Vector(914, 5639, 0), Vector(914, 6096, 0)),
    Part.LineSegment(Vector(914, 6096, 0), Vector(1372, 6096, 0)),
    Part.LineSegment(Vector(1372, 6096, 0), Vector(1372, 5639, 0)),
    Part.LineSegment(Vector(1372, 5639, 0), Vector(914, 5639, 0)),
], False)
sketch7.addConstraint([
    Sketcher.Constraint("Coincident", 0, 2, 1, 1),
    Sketcher.Constraint("Coincident", 1, 2, 2, 1),
    Sketcher.Constraint("Coincident", 2, 2, 3, 1),
    Sketcher.Constraint("Coincident", 3, 2, 0, 1),
    Sketcher.Constraint("Coincident", 4, 2, 5, 1),
    Sketcher.Constraint("Coincident", 5, 2, 6, 1),
    Sketcher.Constraint("Coincident", 6, 2, 7, 1),
    Sketcher.Constraint("Coincident", 7, 2, 4, 1),
    Sketcher.Constraint("Coincident", 8, 2, 9, 1),
    Sketcher.Constraint("Coincident", 9, 2, 10, 1),
    Sketcher.Constraint("Coincident", 10, 2, 11, 1),
    Sketcher.Constraint("Coincident", 11, 2, 8, 1),
    Sketcher.Constraint("Coincident", 12, 2, 13, 1),
    Sketcher.Constraint("Coincident", 13, 2, 14, 1),
    Sketcher.Constraint("Coincident", 14, 2, 15, 1),
    Sketcher.Constraint("Coincident", 15, 2, 12, 1),
    Sketcher.Constraint("Vertical", 0),
    Sketcher.Constraint("Horizontal", 1),
    Sketcher.Constraint("Vertical", 2),
    Sketcher.Constraint("Horizontal", 3),
    Sketcher.Constraint("Horizontal", 4),
    Sketcher.Constraint("Vertical", 5),
    Sketcher.Constraint("Horizontal", 6),
    Sketcher.Constraint("Vertical", 7),
    Sketcher.Constraint("Horizontal", 8),
    Sketcher.Constraint("Vertical", 9),
    Sketcher.Constraint("Horizontal", 10),
    Sketcher.Constraint("Vertical", 11),
    Sketcher.Constraint("Vertical", 12),
    Sketcher.Constraint("Horizontal", 13),
    Sketcher.Constraint("Vertical", 14),
    Sketcher.Constraint("Horizontal", 15),
    Sketcher.Constraint("Symmetric", 2, 2, 4, 2, -2),
    Sketcher.Constraint("Symmetric", 0, 2, 6, 2, -2),
    Sketcher.Constraint("Symmetric", 8, 2, 12, 2, -2),
    Sketcher.Constraint("Symmetric", 10, 2, 14, 2, -2),
    Sketcher.Constraint("Equal", 15, 0),
    Sketcher.Constraint("Equal", 7, 9),
    Sketcher.Constraint("DistanceX", 1, 2, 1, 1, Q("6 in")),
    Sketcher.Constraint("DistanceX", 8, 1, 8, 2, Q("18 in")),
    Sketcher.Constraint("DistanceX", -1, 1, 1, 2, Q("18 in")),
    Sketcher.Constraint("DistanceX", 8, 2, 4, 2, Q("18 in")),
    Sketcher.Constraint("DistanceY", 0, 2, -1, 1, Q("240 in")),
    Sketcher.Constraint("DistanceY", -1, 1, 8, 2, Q("240 in")),
])
pocket4 = body.newObject("PartDesign::Pocket", "Pocket003")
pocket4.Profile = sketch7
pocket4.Length = Q("96 in")
pocket4.Reversed = True

sketch8 = body.newObject("Sketcher::SketchObject", "Sketch007")
sketch8.AttachmentSupport = (doc.getObject("XZ_Plane"), [""])
sketch8.MapMode = "FlatFace"
sketch8.AttachmentOffset = App.Placement(Vector(0, 0, -96 * 25.4), App.Rotation())
sketch8.addGeometry([
    Part.LineSegment(Vector(2010, 1714, 0), Vector(1095, 1714, 0)),
    Part.LineSegment(Vector(1095, 1714, 0), Vector(1095, 1829, 0)),
    Part.LineSegment(Vector(1095, 1829, 0), Vector(2010, 1829, 0)),
    Part.LineSegment(Vector(2010, 1829, 0), Vector(2010, 1714, 0)),
    Part.LineSegment(Vector(1095, -1714, 0), Vector(2010, -1714, 0)),
    Part.LineSegment(Vector(2010, -1714, 0), Vector(2010, -1829, 0)),
    Part.LineSegment(Vector(2010, -1829, 0), Vector(1095, -1829, 0)),
    Part.LineSegment(Vector(1095, -1829, 0), Vector(1095, -1714, 0)),
], False)
sketch8.addConstraint([
    Sketcher.Constraint("Coincident", 0, 2, 1, 1),
    Sketcher.Constraint("Coincident", 1, 2, 2, 1),
    Sketcher.Constraint("Coincident", 2, 2, 3, 1),
    Sketcher.Constraint("Coincident", 3, 2, 0, 1),
    Sketcher.Constraint("Coincident", 4, 2, 5, 1),
    Sketcher.Constraint("Coincident", 5, 2, 6, 1),
    Sketcher.Constraint("Coincident", 6, 2, 7, 1),
    Sketcher.Constraint("Coincident", 7, 2, 4, 1),
    Sketcher.Constraint("Horizontal", 0),
    Sketcher.Constraint("Vertical", 1),
    Sketcher.Constraint("Horizontal", 2),
    Sketcher.Constraint("Vertical", 3),
    Sketcher.Constraint("Horizontal", 4),
    Sketcher.Constraint("Vertical", 5),
    Sketcher.Constraint("Horizontal", 6),
    Sketcher.Constraint("Vertical", 7),
    Sketcher.Constraint("Symmetric", 3, 2, 4, 2, -1),
    Sketcher.Constraint("Symmetric", 1, 2, 6, 2, -1),
    Sketcher.Constraint("DistanceX", 0, 2, 0, 1, Q("36 in")),
    Sketcher.Constraint("DistanceY", 1, 1, 1, 2, Q("4.5 in")),
    Sketcher.Constraint("DistanceY", -1, 1, 1, 2, Q("72 in")),
    Sketcher.Constraint("DistanceX", -1, 1, 0, 2, Q("43.125 in")),
])
pocket5 = body.newObject("PartDesign::Pocket", "Pocket004")
pocket5.Profile = sketch8
pocket5.Type = "UpToFirst"
pocket5.Reversed = True

sketch9 = body.newObject("Sketcher::SketchObject", "Sketch008")
sketch9.AttachmentSupport = (doc.getObject("XZ_Plane"), [""])
sketch9.MapMode = "FlatFace"
sketch9.addGeometry([
    Part.LineSegment(Vector(349, -5675, 0), Vector(457, -5639, 0)),
    Part.LineSegment(Vector(457, -5639, 0), Vector(746, -6506, 0)),
    Part.LineSegment(Vector(746, -6506, 0), Vector(638, -6542, 0)),
    Part.LineSegment(Vector(638, -6542, 0), Vector(349, -5675, 0)),
    Part.LineSegment(Vector(1561, 6285, 0), Vector(914, 5639, 0)),
    Part.LineSegment(Vector(914, 5639, 0), Vector(834, 5720, 0)),
    Part.LineSegment(Vector(834, 5720, 0), Vector(1480, 6366, 0)),
    Part.LineSegment(Vector(1480, 6366, 0), Vector(1561, 6285, 0)),
    Part.LineSegment(Vector(-834, 5720, 0), Vector(-914, 5639, 0)),
    Part.LineSegment(Vector(-914, 5639, 0), Vector(-1561, 6285, 0)),
    Part.LineSegment(Vector(-1561, 6285, 0), Vector(-1480, 6366, 0)),
    Part.LineSegment(Vector(-1480, 6366, 0), Vector(-834, 5720, 0)),
], False)
sketch9.addConstraint([
    Sketcher.Constraint("Coincident", 0, 2, 1, 1),
    Sketcher.Constraint("Coincident", 1, 2, 2, 1),
    Sketcher.Constraint("Coincident", 2, 2, 3, 1),
    Sketcher.Constraint("Coincident", 3, 2, 0, 1),
    Sketcher.Constraint("Coincident", 4, 2, 5, 1),
    Sketcher.Constraint("Coincident", 5, 2, 6, 1),
    Sketcher.Constraint("Coincident", 6, 2, 7, 1),
    Sketcher.Constraint("Coincident", 7, 2, 4, 1),
    Sketcher.Constraint("Coincident", 8, 2, 9, 1),
    Sketcher.Constraint("Coincident", 9, 2, 10, 1),
    Sketcher.Constraint("Coincident", 10, 2, 11, 1),
    Sketcher.Constraint("Coincident", 11, 2, 8, 1),
    Sketcher.Constraint("Symmetric", 4, 2, 8, 2, -2),
    Sketcher.Constraint("Symmetric", 7, 2, 9, 2, -2),
    Sketcher.Constraint("Symmetric", 6, 2, 10, 2, -2),
    Sketcher.Constraint("Symmetric", 5, 2, 11, 2, -2),
    Sketcher.Constraint("Perpendicular", 0, 1),
    Sketcher.Constraint("Perpendicular", 1, 2),
    Sketcher.Constraint("Perpendicular", 2, 3),
    Sketcher.Constraint("Perpendicular", 4, 5),
    Sketcher.Constraint("Perpendicular", 5, 6),
    Sketcher.Constraint("Perpendicular", 6, 7),
    Sketcher.Constraint("Perpendicular", 7, 8),
    Sketcher.Constraint("Equal", 3, 4),
    Sketcher.Constraint("Equal", 2, 5),
    Sketcher.Constraint("Distance", 1, Q("36 in")),
    Sketcher.Constraint("DistanceX", -1, 1, 4, 2, Q("36 in")),
    Sketcher.Constraint("Distance", 0, Q("4.5 in")),
    Sketcher.Constraint("DistanceX", -1, 1, 0, 2, Q("18 in")),
    Sketcher.Constraint("DistanceY", 0, 2, -1, 1, Q("222 in")),
    Sketcher.Constraint("DistanceY", -1, 1, 4, 2, Q("222 in")),
    Sketcher.Constraint("DistanceY", 3, 2, 5, 2, Q("448.605 in")),
])
pad4 = body.newObject("PartDesign::Pad", "Pad003")
pad4.Profile = sketch9
pad4.Length = Q("80 in")
pad4.Reversed = True

doc.recompute()
